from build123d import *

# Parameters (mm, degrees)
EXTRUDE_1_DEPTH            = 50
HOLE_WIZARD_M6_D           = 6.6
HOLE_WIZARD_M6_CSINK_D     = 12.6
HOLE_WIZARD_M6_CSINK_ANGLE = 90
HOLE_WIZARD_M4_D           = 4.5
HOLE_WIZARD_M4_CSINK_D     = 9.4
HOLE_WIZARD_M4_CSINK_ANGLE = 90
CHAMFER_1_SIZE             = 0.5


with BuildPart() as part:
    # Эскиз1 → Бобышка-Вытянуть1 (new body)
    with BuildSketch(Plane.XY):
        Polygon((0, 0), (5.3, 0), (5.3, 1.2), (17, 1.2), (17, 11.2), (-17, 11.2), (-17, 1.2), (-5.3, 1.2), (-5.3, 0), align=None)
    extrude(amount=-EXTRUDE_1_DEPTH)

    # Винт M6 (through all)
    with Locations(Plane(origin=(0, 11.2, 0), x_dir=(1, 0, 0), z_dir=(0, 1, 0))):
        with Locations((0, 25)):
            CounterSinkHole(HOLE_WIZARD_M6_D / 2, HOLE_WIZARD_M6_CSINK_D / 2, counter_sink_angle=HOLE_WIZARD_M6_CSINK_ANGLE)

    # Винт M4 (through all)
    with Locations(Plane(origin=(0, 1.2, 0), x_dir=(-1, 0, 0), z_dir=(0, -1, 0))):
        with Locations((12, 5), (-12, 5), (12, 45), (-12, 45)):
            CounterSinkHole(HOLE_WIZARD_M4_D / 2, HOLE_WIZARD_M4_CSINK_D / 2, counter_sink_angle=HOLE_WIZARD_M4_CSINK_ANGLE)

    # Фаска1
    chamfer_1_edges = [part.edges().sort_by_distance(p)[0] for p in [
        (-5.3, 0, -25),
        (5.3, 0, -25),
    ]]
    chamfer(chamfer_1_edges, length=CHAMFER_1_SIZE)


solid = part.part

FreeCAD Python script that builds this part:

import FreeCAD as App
import Part
import Sketcher

V = App.Vector


def edges_at(feature, points):
    """Names of the edges that pass closest to the given points."""
    edges = feature.Shape.Edges
    near = lambda p: min(range(len(edges)), key=lambda i: edges[i].distToShape(Part.Vertex(*p))[0])
    return sorted({f"Edge{near(p) + 1}" for p in points})


def add_polygon(sketch, points):
    """Adds a closed chain of lines whose ends are joined by coincident constraints."""
    first, n = sketch.GeometryCount, len(points)
    for a, b in zip(points, points[1:] + points[:1]):
        sketch.addGeometry(Part.LineSegment(App.Vector(*a, 0), App.Vector(*b, 0)), False)
    for i in range(n):
        sketch.addConstraint(Sketcher.Constraint("Coincident", first + i, 2, first + (i + 1) % n, 1))

doc = App.newDocument("Part")
body = doc.addObject("PartDesign::Body", "Body")

# Sketch on XY plane
sketch1 = body.newObject("Sketcher::SketchObject", "Sketch")
sketch1.AttachmentSupport = (doc.getObject("XY_Plane"), [""])
sketch1.MapMode = "FlatFace"
add_polygon(sketch1, [(5.3, 0), (5.3, 1.2), (17, 1.2), (17, 11.2), (-17, 11.2), (-17, 1.2), (-5.3, 1.2), (-5.3, 0)])  # lines 0-7
sketch1.addConstraint(Sketcher.Constraint("Vertical", 0))
sketch1.addConstraint(Sketcher.Constraint("Horizontal", 1))
sketch1.addConstraint(Sketcher.Constraint("Vertical", 2))
sketch1.addConstraint(Sketcher.Constraint("Horizontal", 3))
sketch1.addConstraint(Sketcher.Constraint("Vertical", 4))
sketch1.addConstraint(Sketcher.Constraint("Horizontal", 5))
sketch1.addConstraint(Sketcher.Constraint("Vertical", 6))
sketch1.addConstraint(Sketcher.Constraint("Horizontal", 7))
sketch1.addConstraint(Sketcher.Constraint("Symmetric", 6, 2, 7, 2, -1, 1))
sketch1.addConstraint(Sketcher.Constraint("Symmetric", 1, 2, 4, 2, -2))
sketch1.addConstraint(Sketcher.Constraint("DistanceX", 3, 2, 3, 1, 34.0))
sketch1.addConstraint(Sketcher.Constraint("DistanceY", 2, 1, 2, 2, 10.0))
sketch1.addConstraint(Sketcher.Constraint("DistanceX", 1, 1, 1, 2, 11.7))
sketch1.addConstraint(Sketcher.Constraint("DistanceY", 0, 1, 0, 2, 1.2))
pad1 = body.newObject("PartDesign::Pad", "Pad")
pad1.Profile = sketch1
pad1.Length = 50
pad1.Reversed = True

# Sketch on XZ plane
sketch2 = body.newObject("Sketcher::SketchObject", "Sketch001")
sketch2.AttachmentSupport = (doc.getObject("XZ_Plane"), [""])
sketch2.MapMode = "FlatFace"
sketch2.AttachmentOffset = App.Placement(V(0, 0, -11.2), App.Rotation())
sketch2.addGeometry(Part.Circle(V(0, -25, 0), V(0, 0, 1), 3.3), False)
sketch2.addConstraint(Sketcher.Constraint("PointOnObject", 0, 3, -2))
sketch2.addConstraint(Sketcher.Constraint("Diameter", 0, 6.6))
sketch2.addConstraint(Sketcher.Constraint("DistanceY", 0, 3, -1, 1, 25.0))
doc.recompute()
hole = body.newObject("PartDesign::Hole", "Hole")
hole.Profile = sketch2
hole.ThreadType = "None"
hole.Diameter = 6.6
hole.DepthType = "ThroughAll"
hole.HoleCutType = "Countersink"
hole.HoleCutDiameter = 12.6
hole.HoleCutCountersinkAngle = 90
hole.Reversed = True

# Sketch on XZ plane
sketch3 = body.newObject("Sketcher::SketchObject", "Sketch002")
sketch3.AttachmentSupport = (doc.getObject("XZ_Plane"), [""])
sketch3.MapMode = "FlatFace"
sketch3.AttachmentOffset = App.Placement(V(0, 0, -1.2), App.Rotation())
sketch3.addGeometry(Part.Circle(V(-12, -5, 0), V(0, 0, 1), 2.2), False)
sketch3.addGeometry(Part.Circle(V(12, -5, 0), V(0, 0, 1), 2.2), False)
sketch3.addGeometry(Part.Circle(V(-12, -45, 0), V(0, 0, 1), 2.2), False)
sketch3.addGeometry(Part.Circle(V(12, -45, 0), V(0, 0, 1), 2.2), False)
sketch3.addConstraint(Sketcher.Constraint("Equal", 0, 1))
sketch3.addConstraint(Sketcher.Constraint("Equal", 1, 2))
sketch3.addConstraint(Sketcher.Constraint("Equal", 2, 3))
sketch3.addConstraint(Sketcher.Constraint("Symmetric", 0, 3, 1, 3, -2))
sketch3.addConstraint(Sketcher.Constraint("Symmetric", 2, 3, 3, 3, -2))
sketch3.addConstraint(Sketcher.Constraint("Vertical", 0, 3, 2, 3))
sketch3.addConstraint(Sketcher.Constraint("Diameter", 0, 4.5))
sketch3.addConstraint(Sketcher.Constraint("DistanceX", 0, 3, -1, 1, 12.0))
sketch3.addConstraint(Sketcher.Constraint("DistanceY", 0, 3, -1, 1, 5.0))
sketch3.addConstraint(Sketcher.Constraint("DistanceY", 2, 3, -1, 1, 45.0))
doc.recompute()
hole2 = body.newObject("PartDesign::Hole", "Hole001")
hole2.Profile = sketch3
hole2.ThreadType = "None"
hole2.Diameter = 4.5
hole2.DepthType = "ThroughAll"
hole2.HoleCutType = "Countersink"
hole2.HoleCutDiameter = 9.4
hole2.HoleCutCountersinkAngle = 90
doc.recompute()

chamfer = body.newObject("PartDesign::Chamfer", "Chamfer")
chamfer.Base = (hole2, edges_at(hole2, [(-5.3, 0, -25), (5.3, 0, -25)]))
chamfer.Size = 0.5

doc.recompute()
